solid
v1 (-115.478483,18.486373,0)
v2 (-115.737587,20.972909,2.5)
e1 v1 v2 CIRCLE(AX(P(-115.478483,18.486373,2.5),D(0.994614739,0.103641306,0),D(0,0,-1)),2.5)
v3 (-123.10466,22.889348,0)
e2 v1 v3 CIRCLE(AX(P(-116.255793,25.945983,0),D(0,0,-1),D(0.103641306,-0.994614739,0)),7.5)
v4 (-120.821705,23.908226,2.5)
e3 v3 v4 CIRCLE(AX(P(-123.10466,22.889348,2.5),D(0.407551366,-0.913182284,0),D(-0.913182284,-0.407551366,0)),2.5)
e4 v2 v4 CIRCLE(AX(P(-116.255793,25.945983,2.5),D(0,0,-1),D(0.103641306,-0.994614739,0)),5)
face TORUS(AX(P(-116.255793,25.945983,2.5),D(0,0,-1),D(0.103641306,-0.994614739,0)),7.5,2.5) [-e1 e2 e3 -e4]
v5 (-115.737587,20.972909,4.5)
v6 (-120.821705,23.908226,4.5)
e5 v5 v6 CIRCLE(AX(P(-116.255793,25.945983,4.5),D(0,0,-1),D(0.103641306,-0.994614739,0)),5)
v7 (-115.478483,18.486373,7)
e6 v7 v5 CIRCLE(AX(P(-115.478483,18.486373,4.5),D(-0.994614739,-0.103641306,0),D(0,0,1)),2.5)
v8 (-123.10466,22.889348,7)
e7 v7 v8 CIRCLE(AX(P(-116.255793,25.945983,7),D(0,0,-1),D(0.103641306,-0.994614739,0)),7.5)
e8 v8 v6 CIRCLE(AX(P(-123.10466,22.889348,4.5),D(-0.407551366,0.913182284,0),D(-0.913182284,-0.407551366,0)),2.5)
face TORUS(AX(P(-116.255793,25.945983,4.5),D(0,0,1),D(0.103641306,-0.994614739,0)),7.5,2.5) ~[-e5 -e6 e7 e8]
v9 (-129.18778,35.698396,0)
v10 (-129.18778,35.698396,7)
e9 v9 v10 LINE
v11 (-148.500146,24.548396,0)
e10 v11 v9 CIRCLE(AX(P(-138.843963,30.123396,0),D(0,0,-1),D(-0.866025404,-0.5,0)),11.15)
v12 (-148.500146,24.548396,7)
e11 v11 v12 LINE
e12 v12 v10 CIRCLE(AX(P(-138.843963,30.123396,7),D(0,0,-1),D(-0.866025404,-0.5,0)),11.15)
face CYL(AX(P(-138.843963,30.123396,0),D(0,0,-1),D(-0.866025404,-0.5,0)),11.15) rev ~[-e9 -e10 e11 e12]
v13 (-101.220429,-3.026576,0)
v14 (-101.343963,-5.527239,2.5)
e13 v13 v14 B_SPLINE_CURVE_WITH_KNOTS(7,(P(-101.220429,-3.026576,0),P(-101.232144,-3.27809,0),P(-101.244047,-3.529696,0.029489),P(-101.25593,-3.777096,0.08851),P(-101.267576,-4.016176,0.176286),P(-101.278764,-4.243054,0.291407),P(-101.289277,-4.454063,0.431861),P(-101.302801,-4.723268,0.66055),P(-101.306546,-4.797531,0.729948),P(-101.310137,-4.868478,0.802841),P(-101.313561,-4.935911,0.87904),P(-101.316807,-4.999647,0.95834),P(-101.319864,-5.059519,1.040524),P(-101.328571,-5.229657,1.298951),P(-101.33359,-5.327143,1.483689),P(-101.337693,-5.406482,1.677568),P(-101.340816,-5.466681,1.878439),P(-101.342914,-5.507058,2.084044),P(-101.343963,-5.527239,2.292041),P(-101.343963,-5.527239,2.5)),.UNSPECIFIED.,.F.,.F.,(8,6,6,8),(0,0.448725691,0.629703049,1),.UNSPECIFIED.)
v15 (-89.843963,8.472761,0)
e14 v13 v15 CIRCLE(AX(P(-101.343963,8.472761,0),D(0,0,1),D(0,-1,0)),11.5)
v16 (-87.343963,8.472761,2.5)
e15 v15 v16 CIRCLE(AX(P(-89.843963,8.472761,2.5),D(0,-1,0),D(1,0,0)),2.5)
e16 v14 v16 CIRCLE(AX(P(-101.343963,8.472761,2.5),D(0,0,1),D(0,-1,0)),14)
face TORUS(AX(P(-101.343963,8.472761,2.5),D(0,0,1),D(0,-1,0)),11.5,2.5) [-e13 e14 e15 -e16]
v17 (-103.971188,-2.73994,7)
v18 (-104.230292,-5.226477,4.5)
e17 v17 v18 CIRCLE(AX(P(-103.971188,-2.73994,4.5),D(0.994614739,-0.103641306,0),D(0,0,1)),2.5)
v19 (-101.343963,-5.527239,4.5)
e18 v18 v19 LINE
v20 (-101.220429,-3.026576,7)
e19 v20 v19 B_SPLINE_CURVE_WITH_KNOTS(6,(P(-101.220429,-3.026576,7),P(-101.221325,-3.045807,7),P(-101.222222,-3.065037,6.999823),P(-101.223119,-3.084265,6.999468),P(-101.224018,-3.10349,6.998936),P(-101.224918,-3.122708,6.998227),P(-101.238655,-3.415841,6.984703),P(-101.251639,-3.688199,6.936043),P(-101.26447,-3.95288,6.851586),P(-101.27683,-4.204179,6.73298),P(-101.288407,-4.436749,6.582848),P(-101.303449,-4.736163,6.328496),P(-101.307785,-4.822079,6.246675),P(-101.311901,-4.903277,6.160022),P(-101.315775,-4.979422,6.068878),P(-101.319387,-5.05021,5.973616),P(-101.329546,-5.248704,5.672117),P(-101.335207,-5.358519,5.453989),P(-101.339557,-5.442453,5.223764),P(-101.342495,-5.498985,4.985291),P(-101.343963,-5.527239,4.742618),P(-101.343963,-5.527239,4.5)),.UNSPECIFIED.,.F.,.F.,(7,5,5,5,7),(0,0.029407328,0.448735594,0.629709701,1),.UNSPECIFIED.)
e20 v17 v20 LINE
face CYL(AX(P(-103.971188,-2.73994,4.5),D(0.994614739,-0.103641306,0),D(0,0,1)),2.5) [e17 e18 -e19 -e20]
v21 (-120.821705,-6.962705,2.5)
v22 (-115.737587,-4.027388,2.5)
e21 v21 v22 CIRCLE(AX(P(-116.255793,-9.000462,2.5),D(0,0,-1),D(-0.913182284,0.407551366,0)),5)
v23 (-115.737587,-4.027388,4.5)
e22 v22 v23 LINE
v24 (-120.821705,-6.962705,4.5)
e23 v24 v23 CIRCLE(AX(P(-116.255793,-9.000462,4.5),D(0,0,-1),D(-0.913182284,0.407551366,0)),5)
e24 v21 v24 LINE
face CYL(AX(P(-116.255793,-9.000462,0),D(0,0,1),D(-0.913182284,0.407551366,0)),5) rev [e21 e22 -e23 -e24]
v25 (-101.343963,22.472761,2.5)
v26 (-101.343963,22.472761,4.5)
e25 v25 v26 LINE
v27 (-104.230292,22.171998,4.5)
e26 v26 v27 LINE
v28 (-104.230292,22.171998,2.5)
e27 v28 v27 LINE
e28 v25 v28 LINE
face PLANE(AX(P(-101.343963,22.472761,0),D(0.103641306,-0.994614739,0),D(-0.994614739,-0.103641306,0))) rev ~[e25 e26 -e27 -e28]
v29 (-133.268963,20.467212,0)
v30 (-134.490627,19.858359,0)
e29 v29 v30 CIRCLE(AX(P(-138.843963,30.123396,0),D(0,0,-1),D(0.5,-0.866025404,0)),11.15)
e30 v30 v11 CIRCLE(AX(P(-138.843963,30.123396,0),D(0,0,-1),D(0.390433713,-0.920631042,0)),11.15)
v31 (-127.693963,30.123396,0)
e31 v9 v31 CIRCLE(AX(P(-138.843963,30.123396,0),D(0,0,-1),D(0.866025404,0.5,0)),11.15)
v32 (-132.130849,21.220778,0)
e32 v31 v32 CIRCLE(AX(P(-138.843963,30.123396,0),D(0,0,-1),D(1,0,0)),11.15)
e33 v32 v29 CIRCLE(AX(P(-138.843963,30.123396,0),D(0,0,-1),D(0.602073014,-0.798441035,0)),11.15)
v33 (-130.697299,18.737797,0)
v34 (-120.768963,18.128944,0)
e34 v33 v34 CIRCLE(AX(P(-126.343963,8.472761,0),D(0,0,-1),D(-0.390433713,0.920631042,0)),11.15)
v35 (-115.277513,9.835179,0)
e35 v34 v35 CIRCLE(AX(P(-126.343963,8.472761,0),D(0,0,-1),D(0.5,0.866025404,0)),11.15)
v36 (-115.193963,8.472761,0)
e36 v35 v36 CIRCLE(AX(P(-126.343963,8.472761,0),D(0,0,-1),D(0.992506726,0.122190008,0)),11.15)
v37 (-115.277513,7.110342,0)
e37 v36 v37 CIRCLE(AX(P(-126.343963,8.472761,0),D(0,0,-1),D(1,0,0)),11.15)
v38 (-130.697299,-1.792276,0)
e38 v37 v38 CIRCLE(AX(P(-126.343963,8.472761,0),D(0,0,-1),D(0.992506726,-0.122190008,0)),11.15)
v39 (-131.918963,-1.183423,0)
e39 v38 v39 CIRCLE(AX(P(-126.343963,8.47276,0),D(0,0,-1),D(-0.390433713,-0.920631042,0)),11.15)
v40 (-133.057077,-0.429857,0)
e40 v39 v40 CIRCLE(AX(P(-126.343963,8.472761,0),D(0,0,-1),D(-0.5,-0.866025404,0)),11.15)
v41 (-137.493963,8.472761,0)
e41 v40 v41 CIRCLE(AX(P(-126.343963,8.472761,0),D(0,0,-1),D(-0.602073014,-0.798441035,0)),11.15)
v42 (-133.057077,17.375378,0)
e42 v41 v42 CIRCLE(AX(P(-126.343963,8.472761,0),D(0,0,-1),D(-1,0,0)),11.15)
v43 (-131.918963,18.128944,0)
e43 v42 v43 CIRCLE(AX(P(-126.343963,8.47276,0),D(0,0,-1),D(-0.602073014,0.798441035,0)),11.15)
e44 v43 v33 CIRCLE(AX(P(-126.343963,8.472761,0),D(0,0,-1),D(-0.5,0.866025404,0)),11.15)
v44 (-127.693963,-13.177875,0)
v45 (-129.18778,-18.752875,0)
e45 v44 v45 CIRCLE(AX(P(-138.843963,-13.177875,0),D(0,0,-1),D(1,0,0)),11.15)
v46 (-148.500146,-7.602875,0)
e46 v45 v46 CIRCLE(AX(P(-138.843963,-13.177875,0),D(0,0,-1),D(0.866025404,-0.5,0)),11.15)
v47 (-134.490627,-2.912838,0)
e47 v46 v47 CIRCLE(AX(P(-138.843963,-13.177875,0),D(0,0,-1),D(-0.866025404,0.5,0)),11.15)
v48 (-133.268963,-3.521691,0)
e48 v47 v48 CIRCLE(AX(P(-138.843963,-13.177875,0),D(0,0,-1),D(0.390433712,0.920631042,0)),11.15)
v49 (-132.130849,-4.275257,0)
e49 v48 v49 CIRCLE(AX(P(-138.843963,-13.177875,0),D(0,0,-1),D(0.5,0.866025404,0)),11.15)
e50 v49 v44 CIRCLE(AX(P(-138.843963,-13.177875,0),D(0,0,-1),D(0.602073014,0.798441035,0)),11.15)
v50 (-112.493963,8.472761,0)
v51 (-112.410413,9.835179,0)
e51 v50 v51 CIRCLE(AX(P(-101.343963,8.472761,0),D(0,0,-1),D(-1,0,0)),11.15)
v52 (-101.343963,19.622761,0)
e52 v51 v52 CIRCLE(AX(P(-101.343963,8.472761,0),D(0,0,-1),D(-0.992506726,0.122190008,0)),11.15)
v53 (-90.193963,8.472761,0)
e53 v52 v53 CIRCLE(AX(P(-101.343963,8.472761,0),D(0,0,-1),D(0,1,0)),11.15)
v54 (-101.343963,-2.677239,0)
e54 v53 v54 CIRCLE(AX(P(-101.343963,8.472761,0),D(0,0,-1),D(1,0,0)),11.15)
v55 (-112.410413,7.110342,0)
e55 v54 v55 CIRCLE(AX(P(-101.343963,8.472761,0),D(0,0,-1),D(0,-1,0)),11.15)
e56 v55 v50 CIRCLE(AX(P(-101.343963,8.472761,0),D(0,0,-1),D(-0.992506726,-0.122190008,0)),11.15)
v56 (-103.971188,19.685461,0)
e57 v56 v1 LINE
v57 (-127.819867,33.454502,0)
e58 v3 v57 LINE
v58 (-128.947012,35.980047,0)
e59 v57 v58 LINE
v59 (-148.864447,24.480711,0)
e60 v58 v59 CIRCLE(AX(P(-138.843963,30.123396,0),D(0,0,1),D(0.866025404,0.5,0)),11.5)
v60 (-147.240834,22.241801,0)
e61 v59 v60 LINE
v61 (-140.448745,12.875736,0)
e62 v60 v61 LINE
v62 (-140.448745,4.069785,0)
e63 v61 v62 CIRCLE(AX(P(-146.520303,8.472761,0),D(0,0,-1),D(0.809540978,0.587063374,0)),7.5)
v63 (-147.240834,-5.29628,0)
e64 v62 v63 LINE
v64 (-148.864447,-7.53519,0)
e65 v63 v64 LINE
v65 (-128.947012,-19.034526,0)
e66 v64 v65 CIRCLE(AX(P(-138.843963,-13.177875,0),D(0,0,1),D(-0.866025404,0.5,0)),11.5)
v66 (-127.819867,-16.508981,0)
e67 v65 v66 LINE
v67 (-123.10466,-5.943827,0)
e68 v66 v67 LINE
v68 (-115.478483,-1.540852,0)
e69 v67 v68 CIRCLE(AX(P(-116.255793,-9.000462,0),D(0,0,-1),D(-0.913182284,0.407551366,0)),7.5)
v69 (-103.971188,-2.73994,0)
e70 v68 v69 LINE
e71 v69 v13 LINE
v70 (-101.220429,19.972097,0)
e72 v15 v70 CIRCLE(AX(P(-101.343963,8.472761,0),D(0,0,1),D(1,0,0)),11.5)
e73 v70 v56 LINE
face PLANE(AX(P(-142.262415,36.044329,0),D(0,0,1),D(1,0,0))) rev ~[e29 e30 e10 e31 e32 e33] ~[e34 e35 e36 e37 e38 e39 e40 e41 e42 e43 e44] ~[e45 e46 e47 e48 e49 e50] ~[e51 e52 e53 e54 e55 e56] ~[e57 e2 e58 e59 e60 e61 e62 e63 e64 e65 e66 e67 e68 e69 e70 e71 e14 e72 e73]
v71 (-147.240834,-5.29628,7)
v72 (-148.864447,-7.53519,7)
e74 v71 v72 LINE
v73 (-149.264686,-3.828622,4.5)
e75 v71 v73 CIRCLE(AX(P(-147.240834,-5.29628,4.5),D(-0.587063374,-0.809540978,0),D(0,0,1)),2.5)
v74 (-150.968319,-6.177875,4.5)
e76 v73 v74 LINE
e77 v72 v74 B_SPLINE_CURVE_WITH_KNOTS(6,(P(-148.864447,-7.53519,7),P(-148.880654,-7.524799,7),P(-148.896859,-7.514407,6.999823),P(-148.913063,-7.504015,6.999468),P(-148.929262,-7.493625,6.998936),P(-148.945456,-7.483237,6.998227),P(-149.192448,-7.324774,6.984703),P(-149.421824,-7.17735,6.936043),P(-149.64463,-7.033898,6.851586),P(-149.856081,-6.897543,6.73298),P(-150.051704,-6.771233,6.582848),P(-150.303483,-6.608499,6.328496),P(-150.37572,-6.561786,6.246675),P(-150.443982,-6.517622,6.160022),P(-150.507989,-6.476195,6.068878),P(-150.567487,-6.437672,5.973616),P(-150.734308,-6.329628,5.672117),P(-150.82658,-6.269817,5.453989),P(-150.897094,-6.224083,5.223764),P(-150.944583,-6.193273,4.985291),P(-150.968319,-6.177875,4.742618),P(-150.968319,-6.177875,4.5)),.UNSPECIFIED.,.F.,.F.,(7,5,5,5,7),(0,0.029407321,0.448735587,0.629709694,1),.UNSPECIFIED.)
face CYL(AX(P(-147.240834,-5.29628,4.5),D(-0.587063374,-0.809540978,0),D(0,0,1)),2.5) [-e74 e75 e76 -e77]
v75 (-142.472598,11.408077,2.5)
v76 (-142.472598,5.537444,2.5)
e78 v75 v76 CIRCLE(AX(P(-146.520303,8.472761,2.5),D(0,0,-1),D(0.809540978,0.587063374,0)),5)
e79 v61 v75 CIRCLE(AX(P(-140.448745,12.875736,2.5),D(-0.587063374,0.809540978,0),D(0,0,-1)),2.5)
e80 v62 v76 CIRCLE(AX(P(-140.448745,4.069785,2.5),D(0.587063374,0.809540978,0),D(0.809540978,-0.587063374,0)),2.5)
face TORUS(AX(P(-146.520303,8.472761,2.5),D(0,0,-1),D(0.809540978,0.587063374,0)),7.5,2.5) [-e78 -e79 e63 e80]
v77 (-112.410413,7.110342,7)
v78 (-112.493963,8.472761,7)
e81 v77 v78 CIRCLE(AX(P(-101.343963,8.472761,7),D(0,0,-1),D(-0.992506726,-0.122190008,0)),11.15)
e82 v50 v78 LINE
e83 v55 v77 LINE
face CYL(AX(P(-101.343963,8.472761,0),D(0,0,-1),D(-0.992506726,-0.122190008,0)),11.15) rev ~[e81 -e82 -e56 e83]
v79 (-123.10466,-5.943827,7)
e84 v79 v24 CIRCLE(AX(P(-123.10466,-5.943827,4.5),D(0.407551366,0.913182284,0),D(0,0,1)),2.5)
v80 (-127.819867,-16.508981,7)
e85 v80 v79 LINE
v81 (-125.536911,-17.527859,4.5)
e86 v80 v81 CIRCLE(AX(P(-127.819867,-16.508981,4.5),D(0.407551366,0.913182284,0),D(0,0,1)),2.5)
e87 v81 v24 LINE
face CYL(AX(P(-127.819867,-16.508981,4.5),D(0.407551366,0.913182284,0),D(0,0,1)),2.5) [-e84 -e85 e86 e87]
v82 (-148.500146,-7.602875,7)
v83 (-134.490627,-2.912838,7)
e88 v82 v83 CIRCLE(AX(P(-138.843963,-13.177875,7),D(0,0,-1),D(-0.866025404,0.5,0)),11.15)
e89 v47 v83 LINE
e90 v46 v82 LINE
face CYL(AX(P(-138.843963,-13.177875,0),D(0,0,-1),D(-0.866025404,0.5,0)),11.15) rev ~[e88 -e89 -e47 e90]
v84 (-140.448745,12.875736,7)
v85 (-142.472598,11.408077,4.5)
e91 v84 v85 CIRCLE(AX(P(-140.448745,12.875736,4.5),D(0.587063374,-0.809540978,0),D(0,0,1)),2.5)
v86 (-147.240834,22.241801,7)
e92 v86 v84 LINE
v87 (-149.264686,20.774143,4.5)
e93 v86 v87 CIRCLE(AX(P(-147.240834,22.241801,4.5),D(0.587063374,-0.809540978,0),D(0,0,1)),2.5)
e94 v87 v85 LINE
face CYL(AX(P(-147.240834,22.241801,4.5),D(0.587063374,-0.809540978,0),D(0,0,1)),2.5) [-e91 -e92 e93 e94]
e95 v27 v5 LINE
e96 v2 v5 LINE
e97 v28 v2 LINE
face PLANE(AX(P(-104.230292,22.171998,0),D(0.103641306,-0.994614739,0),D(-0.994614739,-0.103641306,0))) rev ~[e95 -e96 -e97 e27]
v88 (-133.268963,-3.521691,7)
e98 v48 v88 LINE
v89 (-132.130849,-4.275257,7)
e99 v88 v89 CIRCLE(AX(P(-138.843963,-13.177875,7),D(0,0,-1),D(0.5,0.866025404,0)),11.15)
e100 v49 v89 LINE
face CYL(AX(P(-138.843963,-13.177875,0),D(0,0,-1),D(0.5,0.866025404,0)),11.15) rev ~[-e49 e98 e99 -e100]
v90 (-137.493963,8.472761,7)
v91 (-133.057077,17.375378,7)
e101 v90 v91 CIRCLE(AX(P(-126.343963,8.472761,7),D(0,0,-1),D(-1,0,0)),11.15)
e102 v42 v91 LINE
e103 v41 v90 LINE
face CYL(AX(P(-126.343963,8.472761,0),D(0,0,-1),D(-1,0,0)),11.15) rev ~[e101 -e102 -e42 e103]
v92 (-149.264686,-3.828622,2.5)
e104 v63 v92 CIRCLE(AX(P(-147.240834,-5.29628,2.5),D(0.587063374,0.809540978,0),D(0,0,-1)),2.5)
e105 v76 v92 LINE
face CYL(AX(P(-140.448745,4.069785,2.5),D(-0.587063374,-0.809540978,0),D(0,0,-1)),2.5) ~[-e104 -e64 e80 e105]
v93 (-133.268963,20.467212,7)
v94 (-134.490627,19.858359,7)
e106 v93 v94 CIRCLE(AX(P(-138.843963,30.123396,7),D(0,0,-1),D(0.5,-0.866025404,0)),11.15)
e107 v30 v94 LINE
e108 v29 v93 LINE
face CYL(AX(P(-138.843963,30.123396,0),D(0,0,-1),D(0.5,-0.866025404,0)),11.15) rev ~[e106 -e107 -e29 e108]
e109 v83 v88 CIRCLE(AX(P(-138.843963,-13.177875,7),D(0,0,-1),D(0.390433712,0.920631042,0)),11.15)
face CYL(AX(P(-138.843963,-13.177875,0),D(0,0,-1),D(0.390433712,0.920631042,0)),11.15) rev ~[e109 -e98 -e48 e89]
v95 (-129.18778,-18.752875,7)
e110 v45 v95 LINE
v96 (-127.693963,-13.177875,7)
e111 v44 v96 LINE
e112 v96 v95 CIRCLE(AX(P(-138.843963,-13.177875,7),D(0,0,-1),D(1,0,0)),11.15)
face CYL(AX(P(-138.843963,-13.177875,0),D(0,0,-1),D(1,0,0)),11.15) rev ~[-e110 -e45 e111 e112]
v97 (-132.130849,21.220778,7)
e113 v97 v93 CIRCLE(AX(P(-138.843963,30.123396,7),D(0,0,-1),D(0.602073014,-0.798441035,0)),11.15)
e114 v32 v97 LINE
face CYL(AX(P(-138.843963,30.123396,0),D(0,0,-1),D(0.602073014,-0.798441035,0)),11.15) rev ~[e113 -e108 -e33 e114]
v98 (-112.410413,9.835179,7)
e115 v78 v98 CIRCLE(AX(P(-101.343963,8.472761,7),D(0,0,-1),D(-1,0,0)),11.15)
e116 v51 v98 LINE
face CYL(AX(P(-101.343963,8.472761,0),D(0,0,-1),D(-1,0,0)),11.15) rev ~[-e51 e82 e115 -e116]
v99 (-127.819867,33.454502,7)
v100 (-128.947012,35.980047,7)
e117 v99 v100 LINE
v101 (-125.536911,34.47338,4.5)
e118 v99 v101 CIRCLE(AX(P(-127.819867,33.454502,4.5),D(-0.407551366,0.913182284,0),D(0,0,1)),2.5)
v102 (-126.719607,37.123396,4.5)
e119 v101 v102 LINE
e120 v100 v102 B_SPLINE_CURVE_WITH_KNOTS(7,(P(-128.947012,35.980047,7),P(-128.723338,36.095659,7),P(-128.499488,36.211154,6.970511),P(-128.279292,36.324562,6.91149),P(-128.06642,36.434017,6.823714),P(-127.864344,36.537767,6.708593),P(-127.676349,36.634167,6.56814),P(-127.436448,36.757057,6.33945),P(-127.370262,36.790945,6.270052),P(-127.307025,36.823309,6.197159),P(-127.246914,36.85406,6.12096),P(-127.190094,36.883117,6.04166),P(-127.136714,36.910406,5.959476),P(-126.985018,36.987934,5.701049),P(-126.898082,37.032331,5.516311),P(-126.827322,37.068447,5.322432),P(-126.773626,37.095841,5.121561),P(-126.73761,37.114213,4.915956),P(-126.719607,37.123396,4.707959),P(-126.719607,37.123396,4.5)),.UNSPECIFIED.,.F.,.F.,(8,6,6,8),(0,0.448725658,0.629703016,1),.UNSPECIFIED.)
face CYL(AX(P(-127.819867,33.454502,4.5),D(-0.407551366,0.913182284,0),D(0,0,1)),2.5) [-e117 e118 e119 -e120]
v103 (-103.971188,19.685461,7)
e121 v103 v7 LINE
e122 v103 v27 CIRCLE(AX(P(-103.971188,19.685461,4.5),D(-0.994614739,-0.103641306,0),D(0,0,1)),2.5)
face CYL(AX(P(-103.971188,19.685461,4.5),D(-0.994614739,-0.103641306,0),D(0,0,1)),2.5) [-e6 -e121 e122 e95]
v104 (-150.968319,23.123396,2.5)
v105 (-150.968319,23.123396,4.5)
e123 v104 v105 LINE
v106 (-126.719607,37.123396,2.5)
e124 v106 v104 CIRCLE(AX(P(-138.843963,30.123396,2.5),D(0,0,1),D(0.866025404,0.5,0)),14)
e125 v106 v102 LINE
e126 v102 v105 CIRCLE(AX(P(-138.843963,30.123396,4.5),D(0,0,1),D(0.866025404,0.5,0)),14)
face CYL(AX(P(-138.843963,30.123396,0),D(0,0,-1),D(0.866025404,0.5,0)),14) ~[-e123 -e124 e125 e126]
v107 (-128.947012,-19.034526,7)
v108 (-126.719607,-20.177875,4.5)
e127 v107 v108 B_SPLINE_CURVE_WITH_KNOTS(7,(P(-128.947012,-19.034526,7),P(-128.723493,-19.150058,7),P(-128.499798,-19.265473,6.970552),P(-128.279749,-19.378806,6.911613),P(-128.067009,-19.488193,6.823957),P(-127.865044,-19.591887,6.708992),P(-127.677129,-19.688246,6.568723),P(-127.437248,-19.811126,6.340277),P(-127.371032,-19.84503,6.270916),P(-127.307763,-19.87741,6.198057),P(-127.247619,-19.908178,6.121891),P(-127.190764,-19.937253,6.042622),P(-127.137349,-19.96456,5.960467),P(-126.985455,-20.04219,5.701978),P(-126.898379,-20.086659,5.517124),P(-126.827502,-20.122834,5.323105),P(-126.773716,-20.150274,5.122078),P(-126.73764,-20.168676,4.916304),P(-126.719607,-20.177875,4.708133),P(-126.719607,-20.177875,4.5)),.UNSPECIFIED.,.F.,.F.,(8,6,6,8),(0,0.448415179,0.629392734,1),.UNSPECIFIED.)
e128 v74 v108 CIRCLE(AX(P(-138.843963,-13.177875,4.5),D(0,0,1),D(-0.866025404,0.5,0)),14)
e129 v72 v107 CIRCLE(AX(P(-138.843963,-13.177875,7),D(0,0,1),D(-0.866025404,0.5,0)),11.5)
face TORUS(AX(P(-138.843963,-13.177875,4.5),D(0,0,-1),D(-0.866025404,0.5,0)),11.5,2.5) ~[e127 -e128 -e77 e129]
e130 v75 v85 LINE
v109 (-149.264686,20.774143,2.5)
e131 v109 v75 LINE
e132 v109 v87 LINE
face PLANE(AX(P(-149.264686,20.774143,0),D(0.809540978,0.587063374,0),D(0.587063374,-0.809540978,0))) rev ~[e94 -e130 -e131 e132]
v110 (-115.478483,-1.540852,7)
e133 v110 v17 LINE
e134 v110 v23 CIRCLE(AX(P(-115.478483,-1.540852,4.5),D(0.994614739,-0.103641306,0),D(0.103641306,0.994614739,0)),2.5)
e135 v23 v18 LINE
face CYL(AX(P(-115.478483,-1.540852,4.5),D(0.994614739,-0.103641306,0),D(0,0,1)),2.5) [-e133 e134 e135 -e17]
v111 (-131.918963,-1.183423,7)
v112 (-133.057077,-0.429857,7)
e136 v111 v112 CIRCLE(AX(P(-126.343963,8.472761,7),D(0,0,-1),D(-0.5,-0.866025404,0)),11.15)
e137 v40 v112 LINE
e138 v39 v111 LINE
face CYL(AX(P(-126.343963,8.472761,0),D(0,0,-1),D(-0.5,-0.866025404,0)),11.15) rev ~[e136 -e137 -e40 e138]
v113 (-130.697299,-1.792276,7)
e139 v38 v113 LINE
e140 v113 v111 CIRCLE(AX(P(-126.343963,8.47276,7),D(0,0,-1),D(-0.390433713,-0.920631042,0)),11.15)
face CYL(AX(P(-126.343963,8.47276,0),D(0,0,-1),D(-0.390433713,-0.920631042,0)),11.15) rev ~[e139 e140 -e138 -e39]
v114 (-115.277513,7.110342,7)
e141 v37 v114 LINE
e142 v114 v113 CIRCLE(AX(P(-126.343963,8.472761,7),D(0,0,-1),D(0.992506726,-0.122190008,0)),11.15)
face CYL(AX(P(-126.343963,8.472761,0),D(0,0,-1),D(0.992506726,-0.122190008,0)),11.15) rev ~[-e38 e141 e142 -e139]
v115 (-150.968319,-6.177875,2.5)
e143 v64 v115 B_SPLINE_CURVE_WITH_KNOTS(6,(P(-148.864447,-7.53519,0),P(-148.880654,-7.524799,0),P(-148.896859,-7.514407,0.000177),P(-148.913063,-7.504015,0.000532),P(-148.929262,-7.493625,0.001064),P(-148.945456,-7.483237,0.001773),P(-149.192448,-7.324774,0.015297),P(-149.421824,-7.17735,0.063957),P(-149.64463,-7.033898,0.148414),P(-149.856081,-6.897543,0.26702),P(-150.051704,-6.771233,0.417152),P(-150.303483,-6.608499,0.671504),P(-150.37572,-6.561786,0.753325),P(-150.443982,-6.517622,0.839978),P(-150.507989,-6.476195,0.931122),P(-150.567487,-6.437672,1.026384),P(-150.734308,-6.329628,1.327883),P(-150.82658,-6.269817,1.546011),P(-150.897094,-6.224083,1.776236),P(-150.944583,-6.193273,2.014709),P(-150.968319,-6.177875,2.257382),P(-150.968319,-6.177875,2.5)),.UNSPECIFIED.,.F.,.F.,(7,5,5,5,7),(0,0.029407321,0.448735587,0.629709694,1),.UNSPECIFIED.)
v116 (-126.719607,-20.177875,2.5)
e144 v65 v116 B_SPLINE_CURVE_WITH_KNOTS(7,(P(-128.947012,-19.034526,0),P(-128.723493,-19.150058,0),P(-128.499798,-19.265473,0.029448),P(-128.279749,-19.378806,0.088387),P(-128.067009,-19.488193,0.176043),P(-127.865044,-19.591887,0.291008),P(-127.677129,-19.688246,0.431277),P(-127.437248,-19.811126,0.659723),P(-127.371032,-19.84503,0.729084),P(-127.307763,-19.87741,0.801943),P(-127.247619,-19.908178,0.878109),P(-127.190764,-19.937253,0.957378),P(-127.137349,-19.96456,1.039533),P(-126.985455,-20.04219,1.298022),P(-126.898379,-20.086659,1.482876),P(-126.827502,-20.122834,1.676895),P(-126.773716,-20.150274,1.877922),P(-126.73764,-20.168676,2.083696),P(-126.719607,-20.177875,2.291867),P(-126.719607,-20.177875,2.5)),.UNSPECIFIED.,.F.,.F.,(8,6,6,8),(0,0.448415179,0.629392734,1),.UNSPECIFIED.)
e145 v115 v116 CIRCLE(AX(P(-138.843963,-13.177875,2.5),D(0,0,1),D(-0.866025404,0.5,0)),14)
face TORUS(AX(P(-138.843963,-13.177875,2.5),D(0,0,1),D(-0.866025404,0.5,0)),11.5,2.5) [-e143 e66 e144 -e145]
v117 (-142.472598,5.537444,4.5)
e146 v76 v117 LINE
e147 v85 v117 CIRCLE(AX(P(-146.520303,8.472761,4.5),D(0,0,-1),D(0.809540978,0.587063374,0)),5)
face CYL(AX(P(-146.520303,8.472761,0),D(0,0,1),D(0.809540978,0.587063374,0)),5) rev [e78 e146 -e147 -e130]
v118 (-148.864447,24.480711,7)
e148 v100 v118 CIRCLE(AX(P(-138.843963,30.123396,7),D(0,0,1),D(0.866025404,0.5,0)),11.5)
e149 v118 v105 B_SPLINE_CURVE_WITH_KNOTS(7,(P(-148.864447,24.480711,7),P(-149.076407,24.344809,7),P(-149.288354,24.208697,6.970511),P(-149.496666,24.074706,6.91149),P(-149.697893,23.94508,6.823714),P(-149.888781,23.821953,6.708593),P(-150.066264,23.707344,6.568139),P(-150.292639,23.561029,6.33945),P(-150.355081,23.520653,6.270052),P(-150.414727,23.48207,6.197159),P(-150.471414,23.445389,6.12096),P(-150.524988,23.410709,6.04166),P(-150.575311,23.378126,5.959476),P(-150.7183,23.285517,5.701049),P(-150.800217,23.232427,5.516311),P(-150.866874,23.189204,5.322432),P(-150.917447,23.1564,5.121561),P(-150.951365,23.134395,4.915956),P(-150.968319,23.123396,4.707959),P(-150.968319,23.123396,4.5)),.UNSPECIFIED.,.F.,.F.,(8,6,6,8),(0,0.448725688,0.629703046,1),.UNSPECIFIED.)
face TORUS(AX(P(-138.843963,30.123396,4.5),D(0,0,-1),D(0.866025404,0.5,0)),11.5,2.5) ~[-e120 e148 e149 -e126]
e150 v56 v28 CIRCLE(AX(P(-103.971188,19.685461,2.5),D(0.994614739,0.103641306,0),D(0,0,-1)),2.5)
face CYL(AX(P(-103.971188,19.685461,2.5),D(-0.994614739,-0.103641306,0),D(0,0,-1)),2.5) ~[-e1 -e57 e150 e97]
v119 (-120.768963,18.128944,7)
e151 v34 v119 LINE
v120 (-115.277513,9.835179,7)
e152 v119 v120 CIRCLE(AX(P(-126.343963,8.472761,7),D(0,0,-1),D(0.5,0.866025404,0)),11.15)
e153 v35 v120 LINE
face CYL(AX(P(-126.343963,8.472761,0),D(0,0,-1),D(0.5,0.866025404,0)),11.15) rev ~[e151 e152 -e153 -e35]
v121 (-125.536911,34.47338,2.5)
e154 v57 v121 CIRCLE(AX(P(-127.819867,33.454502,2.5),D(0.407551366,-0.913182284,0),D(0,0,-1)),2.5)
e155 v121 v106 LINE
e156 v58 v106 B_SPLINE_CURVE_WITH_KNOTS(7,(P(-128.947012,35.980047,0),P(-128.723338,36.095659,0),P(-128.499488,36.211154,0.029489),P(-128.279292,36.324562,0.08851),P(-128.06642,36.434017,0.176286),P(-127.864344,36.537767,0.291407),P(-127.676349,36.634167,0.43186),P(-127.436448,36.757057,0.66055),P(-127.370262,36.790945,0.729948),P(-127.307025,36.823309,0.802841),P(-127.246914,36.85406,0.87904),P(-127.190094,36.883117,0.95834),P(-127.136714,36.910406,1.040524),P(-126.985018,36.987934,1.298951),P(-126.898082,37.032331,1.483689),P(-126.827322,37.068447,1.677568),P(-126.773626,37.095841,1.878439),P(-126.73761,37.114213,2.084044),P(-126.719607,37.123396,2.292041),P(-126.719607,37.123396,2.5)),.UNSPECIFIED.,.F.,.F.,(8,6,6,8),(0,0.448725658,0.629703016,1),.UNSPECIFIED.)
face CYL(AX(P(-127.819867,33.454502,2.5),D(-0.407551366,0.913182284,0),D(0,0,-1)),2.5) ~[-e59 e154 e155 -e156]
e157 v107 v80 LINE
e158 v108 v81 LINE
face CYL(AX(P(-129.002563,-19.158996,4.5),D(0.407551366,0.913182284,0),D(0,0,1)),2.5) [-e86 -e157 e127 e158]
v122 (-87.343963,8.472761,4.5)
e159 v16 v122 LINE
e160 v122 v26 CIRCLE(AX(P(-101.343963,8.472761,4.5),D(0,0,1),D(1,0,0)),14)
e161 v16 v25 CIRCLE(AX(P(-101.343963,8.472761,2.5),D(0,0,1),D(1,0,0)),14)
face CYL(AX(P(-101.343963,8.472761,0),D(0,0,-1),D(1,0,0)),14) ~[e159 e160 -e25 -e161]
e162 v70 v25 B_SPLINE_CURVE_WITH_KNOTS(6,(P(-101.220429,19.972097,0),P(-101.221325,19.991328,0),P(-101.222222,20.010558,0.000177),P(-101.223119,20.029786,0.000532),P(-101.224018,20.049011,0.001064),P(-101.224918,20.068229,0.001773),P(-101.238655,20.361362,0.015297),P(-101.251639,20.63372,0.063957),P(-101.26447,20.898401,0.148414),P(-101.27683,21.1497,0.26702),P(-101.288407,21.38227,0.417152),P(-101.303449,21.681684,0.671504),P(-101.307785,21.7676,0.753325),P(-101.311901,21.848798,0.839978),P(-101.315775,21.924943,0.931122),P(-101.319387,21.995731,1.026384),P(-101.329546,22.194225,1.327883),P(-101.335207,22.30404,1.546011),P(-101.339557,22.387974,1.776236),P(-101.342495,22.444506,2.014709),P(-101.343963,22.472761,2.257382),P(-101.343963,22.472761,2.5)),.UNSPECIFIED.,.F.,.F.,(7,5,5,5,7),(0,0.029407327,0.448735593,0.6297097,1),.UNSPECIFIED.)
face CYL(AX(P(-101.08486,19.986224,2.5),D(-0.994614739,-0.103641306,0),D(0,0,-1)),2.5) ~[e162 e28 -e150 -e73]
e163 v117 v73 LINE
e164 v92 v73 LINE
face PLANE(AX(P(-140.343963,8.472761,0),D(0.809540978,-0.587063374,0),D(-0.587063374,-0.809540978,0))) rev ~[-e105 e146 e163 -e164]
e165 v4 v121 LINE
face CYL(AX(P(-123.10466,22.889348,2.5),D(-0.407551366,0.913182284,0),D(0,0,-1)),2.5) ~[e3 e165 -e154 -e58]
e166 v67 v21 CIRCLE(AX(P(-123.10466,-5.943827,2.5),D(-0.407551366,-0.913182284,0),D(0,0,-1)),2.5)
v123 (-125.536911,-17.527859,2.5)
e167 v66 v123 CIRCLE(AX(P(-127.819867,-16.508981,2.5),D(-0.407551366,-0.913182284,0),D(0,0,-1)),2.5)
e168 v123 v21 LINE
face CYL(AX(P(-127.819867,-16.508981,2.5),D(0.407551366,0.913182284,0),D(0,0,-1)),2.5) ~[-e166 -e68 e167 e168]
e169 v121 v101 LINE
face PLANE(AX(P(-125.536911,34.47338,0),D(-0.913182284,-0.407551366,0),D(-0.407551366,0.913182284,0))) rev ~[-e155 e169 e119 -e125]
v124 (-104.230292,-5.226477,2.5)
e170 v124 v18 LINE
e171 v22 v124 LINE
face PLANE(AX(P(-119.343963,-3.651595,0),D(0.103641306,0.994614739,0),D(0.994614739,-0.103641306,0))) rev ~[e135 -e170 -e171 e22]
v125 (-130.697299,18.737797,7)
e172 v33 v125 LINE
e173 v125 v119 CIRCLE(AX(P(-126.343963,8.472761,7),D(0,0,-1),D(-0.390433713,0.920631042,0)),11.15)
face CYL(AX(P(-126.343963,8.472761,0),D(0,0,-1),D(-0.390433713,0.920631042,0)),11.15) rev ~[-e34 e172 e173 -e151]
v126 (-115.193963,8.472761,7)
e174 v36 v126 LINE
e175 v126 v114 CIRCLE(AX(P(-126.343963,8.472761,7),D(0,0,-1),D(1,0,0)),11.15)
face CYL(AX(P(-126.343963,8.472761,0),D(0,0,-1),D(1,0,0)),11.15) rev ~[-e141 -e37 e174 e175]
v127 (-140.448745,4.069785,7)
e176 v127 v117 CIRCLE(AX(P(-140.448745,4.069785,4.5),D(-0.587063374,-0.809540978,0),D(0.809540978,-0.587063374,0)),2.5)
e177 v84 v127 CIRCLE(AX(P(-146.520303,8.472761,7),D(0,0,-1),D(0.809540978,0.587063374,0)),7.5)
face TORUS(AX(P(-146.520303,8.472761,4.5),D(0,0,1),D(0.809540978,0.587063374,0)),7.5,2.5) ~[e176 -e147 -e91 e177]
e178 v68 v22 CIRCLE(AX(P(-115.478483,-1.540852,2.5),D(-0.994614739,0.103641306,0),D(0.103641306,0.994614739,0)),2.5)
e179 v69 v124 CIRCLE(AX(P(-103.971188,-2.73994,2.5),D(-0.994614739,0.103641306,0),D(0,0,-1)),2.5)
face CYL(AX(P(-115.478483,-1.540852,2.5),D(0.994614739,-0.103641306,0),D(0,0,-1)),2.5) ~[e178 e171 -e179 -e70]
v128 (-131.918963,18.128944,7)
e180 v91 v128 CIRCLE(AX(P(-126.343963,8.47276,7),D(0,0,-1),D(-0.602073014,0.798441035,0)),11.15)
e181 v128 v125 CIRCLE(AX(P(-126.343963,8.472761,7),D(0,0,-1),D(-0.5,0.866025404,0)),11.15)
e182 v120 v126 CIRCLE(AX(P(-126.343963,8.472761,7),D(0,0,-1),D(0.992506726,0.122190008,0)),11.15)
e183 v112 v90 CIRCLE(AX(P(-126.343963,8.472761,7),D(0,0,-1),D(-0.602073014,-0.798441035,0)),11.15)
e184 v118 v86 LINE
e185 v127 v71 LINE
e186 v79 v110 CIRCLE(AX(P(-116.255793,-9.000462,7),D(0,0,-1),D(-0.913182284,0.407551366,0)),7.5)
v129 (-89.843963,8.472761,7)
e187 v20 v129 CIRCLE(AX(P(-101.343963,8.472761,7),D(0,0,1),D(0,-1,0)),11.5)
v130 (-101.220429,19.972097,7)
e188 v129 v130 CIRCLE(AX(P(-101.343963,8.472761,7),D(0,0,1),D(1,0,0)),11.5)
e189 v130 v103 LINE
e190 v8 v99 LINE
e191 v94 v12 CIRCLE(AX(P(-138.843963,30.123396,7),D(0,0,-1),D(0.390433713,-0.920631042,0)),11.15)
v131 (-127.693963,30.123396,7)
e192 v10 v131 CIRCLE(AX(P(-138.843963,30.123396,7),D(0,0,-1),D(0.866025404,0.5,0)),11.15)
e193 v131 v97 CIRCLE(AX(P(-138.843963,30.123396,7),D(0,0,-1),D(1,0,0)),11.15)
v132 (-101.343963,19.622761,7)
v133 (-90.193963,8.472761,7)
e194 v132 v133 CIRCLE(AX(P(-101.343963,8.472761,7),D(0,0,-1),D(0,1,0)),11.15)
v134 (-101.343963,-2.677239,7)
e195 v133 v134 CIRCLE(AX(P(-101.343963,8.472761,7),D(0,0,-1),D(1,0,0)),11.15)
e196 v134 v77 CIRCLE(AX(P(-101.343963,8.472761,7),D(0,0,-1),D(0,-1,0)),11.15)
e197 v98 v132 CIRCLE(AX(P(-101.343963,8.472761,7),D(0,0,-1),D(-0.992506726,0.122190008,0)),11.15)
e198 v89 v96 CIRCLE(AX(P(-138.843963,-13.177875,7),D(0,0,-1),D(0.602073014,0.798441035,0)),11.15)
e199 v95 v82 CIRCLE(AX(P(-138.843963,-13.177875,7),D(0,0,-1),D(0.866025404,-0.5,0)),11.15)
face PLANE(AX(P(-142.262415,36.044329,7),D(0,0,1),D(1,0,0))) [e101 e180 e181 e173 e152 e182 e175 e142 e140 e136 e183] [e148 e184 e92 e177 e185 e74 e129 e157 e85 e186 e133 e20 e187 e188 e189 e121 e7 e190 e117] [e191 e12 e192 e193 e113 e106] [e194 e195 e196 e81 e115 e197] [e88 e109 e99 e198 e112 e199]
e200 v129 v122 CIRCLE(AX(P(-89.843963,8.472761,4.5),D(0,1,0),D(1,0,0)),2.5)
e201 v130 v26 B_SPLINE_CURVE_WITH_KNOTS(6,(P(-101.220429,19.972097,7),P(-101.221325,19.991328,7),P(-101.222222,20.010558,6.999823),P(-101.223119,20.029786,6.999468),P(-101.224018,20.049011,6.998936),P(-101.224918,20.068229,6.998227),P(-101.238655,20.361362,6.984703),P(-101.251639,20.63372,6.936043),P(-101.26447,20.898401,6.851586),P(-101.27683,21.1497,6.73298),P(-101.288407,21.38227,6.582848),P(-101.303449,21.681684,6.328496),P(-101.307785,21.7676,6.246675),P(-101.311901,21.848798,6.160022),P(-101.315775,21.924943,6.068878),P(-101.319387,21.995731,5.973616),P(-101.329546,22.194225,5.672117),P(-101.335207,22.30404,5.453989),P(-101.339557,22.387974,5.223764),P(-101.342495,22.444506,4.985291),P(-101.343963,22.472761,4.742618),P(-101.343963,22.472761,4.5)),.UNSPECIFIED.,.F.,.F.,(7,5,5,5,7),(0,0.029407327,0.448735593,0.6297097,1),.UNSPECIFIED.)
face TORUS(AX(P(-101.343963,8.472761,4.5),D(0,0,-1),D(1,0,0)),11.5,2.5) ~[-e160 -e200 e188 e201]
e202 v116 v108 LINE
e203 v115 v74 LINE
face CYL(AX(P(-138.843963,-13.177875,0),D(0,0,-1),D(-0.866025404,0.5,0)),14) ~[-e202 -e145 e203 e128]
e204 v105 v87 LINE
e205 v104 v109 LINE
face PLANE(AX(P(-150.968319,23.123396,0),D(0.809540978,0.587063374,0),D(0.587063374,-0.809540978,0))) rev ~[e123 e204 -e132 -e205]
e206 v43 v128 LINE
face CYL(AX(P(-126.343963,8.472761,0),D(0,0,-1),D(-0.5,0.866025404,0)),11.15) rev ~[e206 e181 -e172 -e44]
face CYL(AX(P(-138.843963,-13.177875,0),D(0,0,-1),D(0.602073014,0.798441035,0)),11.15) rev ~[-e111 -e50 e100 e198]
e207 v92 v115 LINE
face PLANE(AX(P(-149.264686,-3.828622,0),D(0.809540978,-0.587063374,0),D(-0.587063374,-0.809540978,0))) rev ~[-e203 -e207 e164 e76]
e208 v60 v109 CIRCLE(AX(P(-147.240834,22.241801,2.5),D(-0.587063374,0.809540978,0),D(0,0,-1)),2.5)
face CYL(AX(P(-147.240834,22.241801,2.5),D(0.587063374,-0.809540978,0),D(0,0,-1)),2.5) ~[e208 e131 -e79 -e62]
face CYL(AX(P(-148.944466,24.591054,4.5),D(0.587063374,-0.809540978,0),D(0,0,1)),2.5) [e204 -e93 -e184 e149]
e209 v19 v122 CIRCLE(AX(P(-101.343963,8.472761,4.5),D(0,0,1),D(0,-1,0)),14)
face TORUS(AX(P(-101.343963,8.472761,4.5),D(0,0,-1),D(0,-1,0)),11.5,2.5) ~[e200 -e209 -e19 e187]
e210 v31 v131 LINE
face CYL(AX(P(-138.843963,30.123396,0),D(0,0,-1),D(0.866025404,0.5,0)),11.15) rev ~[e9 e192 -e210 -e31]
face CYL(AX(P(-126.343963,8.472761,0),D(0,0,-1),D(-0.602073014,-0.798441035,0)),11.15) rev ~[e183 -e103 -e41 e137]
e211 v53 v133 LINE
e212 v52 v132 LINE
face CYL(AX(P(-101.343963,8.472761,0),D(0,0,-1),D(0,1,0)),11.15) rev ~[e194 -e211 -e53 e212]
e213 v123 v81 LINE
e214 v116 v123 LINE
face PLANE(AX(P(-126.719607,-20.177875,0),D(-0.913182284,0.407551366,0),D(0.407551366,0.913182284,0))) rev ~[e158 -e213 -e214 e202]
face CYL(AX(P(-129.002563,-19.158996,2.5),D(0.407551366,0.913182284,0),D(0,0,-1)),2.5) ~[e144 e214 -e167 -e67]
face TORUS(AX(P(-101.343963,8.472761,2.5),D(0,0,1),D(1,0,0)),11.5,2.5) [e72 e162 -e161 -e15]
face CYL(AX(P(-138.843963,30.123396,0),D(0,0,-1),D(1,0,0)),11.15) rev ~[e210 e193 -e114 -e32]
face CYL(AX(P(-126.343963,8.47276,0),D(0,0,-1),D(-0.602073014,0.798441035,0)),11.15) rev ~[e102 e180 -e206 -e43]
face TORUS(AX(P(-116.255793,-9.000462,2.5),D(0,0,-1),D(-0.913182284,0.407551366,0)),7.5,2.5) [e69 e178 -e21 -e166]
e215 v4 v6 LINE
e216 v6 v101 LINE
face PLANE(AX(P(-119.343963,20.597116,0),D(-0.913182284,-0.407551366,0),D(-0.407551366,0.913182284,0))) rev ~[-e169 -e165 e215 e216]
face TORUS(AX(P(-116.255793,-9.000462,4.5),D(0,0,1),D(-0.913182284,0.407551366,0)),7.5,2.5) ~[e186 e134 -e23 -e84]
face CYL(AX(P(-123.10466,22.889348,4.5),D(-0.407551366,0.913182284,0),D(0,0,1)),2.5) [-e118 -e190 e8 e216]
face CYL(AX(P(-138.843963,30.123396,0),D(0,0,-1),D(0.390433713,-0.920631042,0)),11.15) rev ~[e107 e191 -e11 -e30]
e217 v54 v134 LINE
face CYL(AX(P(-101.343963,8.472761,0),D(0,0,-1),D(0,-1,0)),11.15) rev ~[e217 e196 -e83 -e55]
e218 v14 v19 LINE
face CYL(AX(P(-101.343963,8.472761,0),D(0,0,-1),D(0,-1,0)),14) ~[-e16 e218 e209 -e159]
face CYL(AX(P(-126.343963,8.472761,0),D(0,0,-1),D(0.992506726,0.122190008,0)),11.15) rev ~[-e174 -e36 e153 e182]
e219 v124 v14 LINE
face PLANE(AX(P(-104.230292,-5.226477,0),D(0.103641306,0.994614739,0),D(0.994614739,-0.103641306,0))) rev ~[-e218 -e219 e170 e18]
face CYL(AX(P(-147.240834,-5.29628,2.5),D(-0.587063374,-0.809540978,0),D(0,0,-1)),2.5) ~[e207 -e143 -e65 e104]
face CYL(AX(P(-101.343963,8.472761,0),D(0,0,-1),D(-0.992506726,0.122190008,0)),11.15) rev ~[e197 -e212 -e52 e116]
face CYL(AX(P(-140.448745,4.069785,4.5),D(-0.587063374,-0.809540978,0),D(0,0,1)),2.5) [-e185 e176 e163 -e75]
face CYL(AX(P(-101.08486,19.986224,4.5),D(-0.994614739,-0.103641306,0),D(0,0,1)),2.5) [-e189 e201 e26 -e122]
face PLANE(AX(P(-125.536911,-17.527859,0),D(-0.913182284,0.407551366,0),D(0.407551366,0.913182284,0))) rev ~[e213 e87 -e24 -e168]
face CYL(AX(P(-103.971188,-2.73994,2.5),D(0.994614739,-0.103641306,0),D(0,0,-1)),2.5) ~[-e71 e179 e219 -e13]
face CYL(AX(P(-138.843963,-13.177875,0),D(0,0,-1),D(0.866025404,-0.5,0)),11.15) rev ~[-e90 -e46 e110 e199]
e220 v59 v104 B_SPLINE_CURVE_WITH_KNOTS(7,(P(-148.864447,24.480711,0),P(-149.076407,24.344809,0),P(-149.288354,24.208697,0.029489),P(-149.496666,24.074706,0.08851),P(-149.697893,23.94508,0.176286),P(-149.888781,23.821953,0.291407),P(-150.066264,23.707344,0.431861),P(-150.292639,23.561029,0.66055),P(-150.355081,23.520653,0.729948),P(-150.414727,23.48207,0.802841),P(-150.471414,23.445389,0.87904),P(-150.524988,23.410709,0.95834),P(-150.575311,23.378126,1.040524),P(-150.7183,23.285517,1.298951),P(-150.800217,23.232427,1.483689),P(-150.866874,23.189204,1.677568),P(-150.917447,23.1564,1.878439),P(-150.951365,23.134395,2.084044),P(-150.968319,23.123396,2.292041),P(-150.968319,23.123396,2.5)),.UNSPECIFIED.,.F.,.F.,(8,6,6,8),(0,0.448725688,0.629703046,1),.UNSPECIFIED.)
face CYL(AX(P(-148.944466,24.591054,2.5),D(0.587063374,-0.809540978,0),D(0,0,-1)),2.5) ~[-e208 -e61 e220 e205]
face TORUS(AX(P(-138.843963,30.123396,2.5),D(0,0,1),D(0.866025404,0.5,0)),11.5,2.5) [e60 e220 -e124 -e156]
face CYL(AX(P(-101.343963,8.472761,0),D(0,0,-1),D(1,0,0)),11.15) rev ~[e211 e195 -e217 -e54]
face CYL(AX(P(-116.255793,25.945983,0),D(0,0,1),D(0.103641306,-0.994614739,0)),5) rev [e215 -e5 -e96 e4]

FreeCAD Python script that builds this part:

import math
import FreeCAD as App
import Part
import Sketcher


def edges_at(feature, points):
    """Names of the edges that pass closest to the given points."""
    edges = feature.Shape.Edges
    near = lambda p: min(range(len(edges)), key=lambda i: edges[i].distToShape(Part.Vertex(*p))[0])
    return sorted({f"Edge{near(p) + 1}" for p in points})

doc = App.newDocument("Part")
params = doc.addObject("Spreadsheet::Sheet", "Params")
for row, (alias, value) in enumerate([
    ("sketch1_radius", "14 mm"),
    ("sketch1_radius2", "11.15 mm"),
    ("pad1_length", "7 mm"),
    ("fillet_radius", "5 mm"),
    ("fillet2_radius", "2.5 mm"),
], start=1):
    params.set(f"A{row}", alias)
    params.set(f"B{row}", "=" + value)
    params.setAlias(f"B{row}", alias)

body = doc.addObject("PartDesign::Body", "Body")

sketch1 = body.newObject("Sketcher::SketchObject", "Sketch")
sketch1.AttachmentSupport = (doc.getObject("XY_Plane"), [""])
sketch1.MapMode = "FlatFace"
sketch1.addGeometry([
    Part.ArcOfCircle(Part.Circle(App.Vector(-138.8, 30.1, 0), App.Vector(0, 0, 1), 14), math.radians(30), math.radians(210)),
    Part.LineSegment(App.Vector(-151, 23.1, 0), App.Vector(-149.3, 20.8, 0)),
    Part.LineSegment(App.Vector(-149.3, 20.8, 0), App.Vector(-140.3, 8.5, 0)),
    Part.LineSegment(App.Vector(-140.3, 8.5, 0), App.Vector(-149.3, -3.8, 0)),
    Part.LineSegment(App.Vector(-149.3, -3.8, 0), App.Vector(-151, -6.2, 0)),
    Part.ArcOfCircle(Part.Circle(App.Vector(-138.8, -13.2, 0), App.Vector(0, 0, 1), 14), math.radians(150), math.radians(330)),
    Part.LineSegment(App.Vector(-126.7, -20.2, 0), App.Vector(-125.5, -17.5, 0)),
    Part.LineSegment(App.Vector(-125.5, -17.5, 0), App.Vector(-119.3, -3.7, 0)),
    Part.LineSegment(App.Vector(-119.3, -3.7, 0), App.Vector(-104.2, -5.2, 0)),
    Part.LineSegment(App.Vector(-104.2, -5.2, 0), App.Vector(-101.3, -5.5, 0)),
    Part.ArcOfCircle(Part.Circle(App.Vector(-101.3, 8.5, 0), App.Vector(0, 0, 1), 14), math.radians(-90), math.radians(0)),
    Part.ArcOfCircle(Part.Circle(App.Vector(-101.3, 8.5, 0), App.Vector(0, 0, 1), 14), math.radians(0), math.radians(90)),
    Part.LineSegment(App.Vector(-101.3, 22.5, 0), App.Vector(-104.2, 22.2, 0)),
    Part.LineSegment(App.Vector(-104.2, 22.2, 0), App.Vector(-119.3, 20.6, 0)),
    Part.LineSegment(App.Vector(-119.3, 20.6, 0), App.Vector(-125.5, 34.5, 0)),
    Part.LineSegment(App.Vector(-125.5, 34.5, 0), App.Vector(-126.7, 37.1, 0)),
    Part.ArcOfCircle(Part.Circle(App.Vector(-101.3, 8.5, 0), App.Vector(0, 0, 1), 11.2), math.radians(-173), math.radians(-90)),
    Part.ArcOfCircle(Part.Circle(App.Vector(-101.3, 8.5, 0), App.Vector(0, 0, 1), 11.1), math.radians(180), math.radians(187.02)),
    Part.ArcOfCircle(Part.Circle(App.Vector(-101.3, 8.5, 0), App.Vector(0, 0, 1), 11.1), math.radians(172.98), math.radians(180)),
    Part.ArcOfCircle(Part.Circle(App.Vector(-101.3, 8.5, 0), App.Vector(0, 0, 1), 11.2), math.radians(90), math.radians(173)),
    Part.ArcOfCircle(Part.Circle(App.Vector(-101.3, 8.5, 0), App.Vector(0, 0, 1), 11.2), math.radians(0), math.radians(90)),
    Part.ArcOfCircle(Part.Circle(App.Vector(-101.3, 8.5, 0), App.Vector(0, 0, 1), 11.2), math.radians(-90), math.radians(0)),
    Part.ArcOfCircle(Part.Circle(App.Vector(-138.8, -13.2, 0), App.Vector(0, 0, 1), 11.2), math.radians(67), math.radians(150)),
    Part.ArcOfCircle(Part.Circle(App.Vector(-138.8, -13.2, 0), App.Vector(0, 0, 1), 11.1), math.radians(60), math.radians(67.02)),
    Part.ArcOfCircle(Part.Circle(App.Vector(-138.8, -13.2, 0), App.Vector(0, 0, 1), 11.2), math.radians(52.98), math.radians(60)),
    Part.ArcOfCircle(Part.Circle(App.Vector(-138.8, -13.2, 0), App.Vector(0, 0, 1), 11.2), math.radians(0), math.radians(53)),
    Part.ArcOfCircle(Part.Circle(App.Vector(-138.8, -13.2, 0), App.Vector(0, 0, 1), 11.2), math.radians(-30), math.radians(0)),
    Part.ArcOfCircle(Part.Circle(App.Vector(-138.8, -13.2, 0), App.Vector(0, 0, 1), 11.2), math.radians(150), math.radians(330)),
    Part.ArcOfCircle(Part.Circle(App.Vector(-126.3, 8.5, 0), App.Vector(0, 0, 1), 11.1), math.radians(0), math.radians(7.02)),
    Part.ArcOfCircle(Part.Circle(App.Vector(-126.3, 8.5, 0), App.Vector(0, 0, 1), 11.1), math.radians(-7.02), math.radians(0)),
    Part.ArcOfCircle(Part.Circle(App.Vector(-126.3, 8.5, 0), App.Vector(0, 0, 1), 11.2), math.radians(-113), math.radians(-7)),
    Part.ArcOfCircle(Part.Circle(App.Vector(-126.3, 8.5, 0), App.Vector(0, 0, 1), 11.1), math.radians(-120), math.radians(-112.98)),
    Part.ArcOfCircle(Part.Circle(App.Vector(-126.3, 8.5, 0), App.Vector(0, 0, 1), 11.2), math.radians(-127.02), math.radians(-120)),
    Part.ArcOfCircle(Part.Circle(App.Vector(-126.3, 8.5, 0), App.Vector(0, 0, 1), 11.2), math.radians(180), math.radians(233)),
    Part.ArcOfCircle(Part.Circle(App.Vector(-126.3, 8.5, 0), App.Vector(0, 0, 1), 11.2), math.radians(127), math.radians(180)),
    Part.ArcOfCircle(Part.Circle(App.Vector(-126.3, 8.5, 0), App.Vector(0, 0, 1), 11.2), math.radians(120), math.radians(127.02)),
    Part.ArcOfCircle(Part.Circle(App.Vector(-126.3, 8.5, 0), App.Vector(0, 0, 1), 11.1), math.radians(112.98), math.radians(120)),
    Part.ArcOfCircle(Part.Circle(App.Vector(-126.3, 8.5, 0), App.Vector(0, 0, 1), 11.2), math.radians(60), math.radians(113)),
    Part.ArcOfCircle(Part.Circle(App.Vector(-126.3, 8.5, 0), App.Vector(0, 0, 1), 11.2), math.radians(7), math.radians(60)),
    Part.ArcOfCircle(Part.Circle(App.Vector(-138.8, 30.1, 0), App.Vector(0, 0, 1), 11.2), math.radians(-67.02), math.radians(-60)),
    Part.ArcOfCircle(Part.Circle(App.Vector(-138.8, 30.1, 0), App.Vector(0, 0, 1), 11.2), math.radians(-150), math.radians(-67)),
    Part.ArcOfCircle(Part.Circle(App.Vector(-138.8, 30.1, 0), App.Vector(0, 0, 1), 11.2), math.radians(30), math.radians(210)),
    Part.ArcOfCircle(Part.Circle(App.Vector(-138.8, 30.1, 0), App.Vector(0, 0, 1), 11.2), math.radians(0), math.radians(30)),
    Part.ArcOfCircle(Part.Circle(App.Vector(-138.8, 30.1, 0), App.Vector(0, 0, 1), 11.2), math.radians(-53), math.radians(0)),
    Part.ArcOfCircle(Part.Circle(App.Vector(-138.8, 30.1, 0), App.Vector(0, 0, 1), 11.2), math.radians(-60), math.radians(-52.98)),
], False)
sketch1.addConstraint([
    Sketcher.Constraint("Coincident", 0, 2, 1, 1),
    Sketcher.Constraint("Coincident", 1, 2, 2, 1),
    Sketcher.Constraint("Coincident", 2, 2, 3, 1),
    Sketcher.Constraint("Coincident", 3, 2, 4, 1),
    Sketcher.Constraint("Coincident", 4, 2, 5, 1),
    Sketcher.Constraint("Coincident", 5, 2, 6, 1),
    Sketcher.Constraint("Coincident", 6, 2, 7, 1),
    Sketcher.Constraint("Coincident", 7, 2, 8, 1),
    Sketcher.Constraint("Coincident", 8, 2, 9, 1),
    Sketcher.Constraint("Coincident", 9, 2, 10, 1),
    Sketcher.Constraint("Tangent", 10, 2, 11, 1),
    Sketcher.Constraint("Coincident", 11, 2, 12, 1),
    Sketcher.Constraint("Coincident", 12, 2, 13, 1),
    Sketcher.Constraint("Coincident", 13, 2, 14, 1),
    Sketcher.Constraint("Coincident", 14, 2, 15, 1),
    Sketcher.Constraint("Coincident", 15, 2, 0, 1),
    Sketcher.Constraint("Tangent", 16, 1, 17, 2),
    Sketcher.Constraint("Tangent", 17, 1, 18, 2),
    Sketcher.Constraint("Tangent", 18, 1, 19, 2),
    Sketcher.Constraint("Tangent", 19, 1, 20, 2),
    Sketcher.Constraint("Tangent", 20, 1, 21, 2),
    Sketcher.Constraint("Tangent", 21, 1, 16, 2),
    Sketcher.Constraint("Tangent", 22, 1, 23, 2),
    Sketcher.Constraint("Tangent", 23, 1, 24, 2),
    Sketcher.Constraint("Tangent", 24, 1, 25, 2),
    Sketcher.Constraint("Tangent", 25, 1, 26, 2),
    Sketcher.Constraint("Tangent", 26, 1, 27, 2),
    Sketcher.Constraint("Tangent", 27, 1, 22, 2),
    Sketcher.Constraint("Tangent", 28, 1, 29, 2),
    Sketcher.Constraint("Tangent", 29, 1, 30, 2),
    Sketcher.Constraint("Tangent", 30, 1, 31, 2),
    Sketcher.Constraint("Tangent", 31, 1, 32, 2),
    Sketcher.Constraint("Tangent", 32, 1, 33, 2),
    Sketcher.Constraint("Tangent", 33, 1, 34, 2),
    Sketcher.Constraint("Tangent", 34, 1, 35, 2),
    Sketcher.Constraint("Tangent", 35, 1, 36, 2),
    Sketcher.Constraint("Tangent", 36, 1, 37, 2),
    Sketcher.Constraint("Tangent", 37, 1, 38, 2),
    Sketcher.Constraint("Tangent", 38, 1, 28, 2),
    Sketcher.Constraint("Tangent", 39, 1, 40, 2),
    Sketcher.Constraint("Tangent", 40, 1, 41, 2),
    Sketcher.Constraint("Tangent", 41, 1, 42, 2),
    Sketcher.Constraint("Tangent", 42, 1, 43, 2),
    Sketcher.Constraint("Tangent", 43, 1, 44, 2),
    Sketcher.Constraint("Tangent", 44, 1, 39, 2),
    Sketcher.Constraint("Coincident", 16, 3, 10, 3),
    Sketcher.Constraint("Coincident", 18, 3, 10, 3),
    Sketcher.Constraint("Coincident", 22, 3, 5, 3),
    Sketcher.Constraint("Coincident", 24, 3, 5, 3),
    Sketcher.Constraint("Coincident", 30, 3, 28, 3),
    Sketcher.Constraint("Coincident", 32, 3, 28, 3),
    Sketcher.Constraint("Coincident", 34, 3, 28, 3),
    Sketcher.Constraint("Coincident", 36, 3, 28, 3),
    Sketcher.Constraint("Coincident", 39, 3, 0, 3),
    Sketcher.Constraint("Coincident", 41, 3, 0, 3),
    Sketcher.Constraint("Equal", 0, 5),
    Sketcher.Constraint("Equal", 5, 10),
    Sketcher.Constraint("Equal", 10, 11),
    Sketcher.Constraint("Equal", 18, 19),
    Sketcher.Constraint("Equal", 21, 22),
    Sketcher.Constraint("Equal", 24, 25),
    Sketcher.Constraint("Equal", 27, 28),
    Sketcher.Constraint("Equal", 38, 39),
    Sketcher.Constraint("Equal", 41, 42),
    Sketcher.Constraint("Parallel", 1, 2),
    Sketcher.Constraint("Parallel", 3, 4),
    Sketcher.Constraint("Parallel", 6, 7),
    Sketcher.Constraint("Parallel", 8, 9),
    Sketcher.Constraint("Parallel", 12, 13),
    Sketcher.Constraint("Parallel", 14, 15),
    Sketcher.Constraint("Horizontal", 21, 3, 28, 3),
    Sketcher.Constraint("Horizontal", 38, 3, 2, 2),
    Sketcher.Constraint("Horizontal", 2, 2, 10, 2),
    Sketcher.Constraint("Horizontal", 10, 2, 17, 1),
    Sketcher.Constraint("Horizontal", 17, 1, 20, 1),
    Sketcher.Constraint("Horizontal", 27, 3, 25, 1),
    Sketcher.Constraint("Horizontal", 20, 1, 28, 1),
    Sketcher.Constraint("Horizontal", 16, 1, 29, 1),
    Sketcher.Constraint("Horizontal", 28, 1, 33, 1),
    Sketcher.Constraint("Horizontal", 35, 1, 37, 1),
    Sketcher.Constraint("Horizontal", 18, 1, 38, 1),
    Sketcher.Constraint("Horizontal", 44, 3, 42, 1),
    Sketcher.Constraint("Vertical", 0, 3, 5, 3),
    Sketcher.Constraint("Vertical", 1, 2, 3, 2),
    Sketcher.Constraint("Vertical", 0, 2, 4, 2),
    Sketcher.Constraint("Vertical", 21, 3, 9, 2),
    Sketcher.Constraint("Vertical", 9, 2, 11, 2),
    Sketcher.Constraint("Vertical", 8, 2, 12, 2),
    Sketcher.Constraint("Vertical", 7, 2, 13, 2),
    Sketcher.Constraint("Vertical", 6, 2, 14, 2),
    Sketcher.Constraint("Vertical", 5, 2, 15, 2),
    Sketcher.Constraint("Vertical", 16, 1, 18, 1),
    Sketcher.Constraint("Vertical", 11, 2, 19, 1),
    Sketcher.Constraint("Vertical", 19, 1, 21, 1),
    Sketcher.Constraint("Vertical", 32, 1, 34, 1),
    Sketcher.Constraint("Vertical", 31, 1, 35, 1),
    Sketcher.Constraint("Vertical", 30, 1, 36, 1),
    Sketcher.Constraint("Vertical", 22, 1, 39, 1),
    Sketcher.Constraint("Vertical", 27, 1, 40, 1),
    Sketcher.Constraint("Vertical", 26, 1, 41, 1),
    Sketcher.Constraint("Vertical", 24, 1, 43, 1),
    Sketcher.Constraint("Vertical", 23, 1, 44, 1),
    Sketcher.Constraint("Equal", 2, 3),
    Sketcher.Constraint("Equal", 4, 6),
    Sketcher.Constraint("Equal", 3, 7),
    Sketcher.Constraint("Equal", 7, 8),
    Sketcher.Constraint("Equal", 6, 9),
    Sketcher.Constraint("Equal", 9, 12),
    Sketcher.Constraint("Radius", 0, 14.0),
    Sketcher.Constraint("Radius", 16, 11.15),
    Sketcher.Constraint("DistanceX", 30, 1, -1, 1, 130.697299),
    Sketcher.Constraint("DistanceY", -1, 1, 10, 3, 8.47276),
    Sketcher.Constraint("DistanceX", 0, 2, -1, 1, 150.968319),
    Sketcher.Constraint("DistanceY", 3, 2, -1, 1, 3.828622),
    Sketcher.Constraint("DistanceX", 6, 2, -1, 1, 125.536911),
    Sketcher.Constraint("DistanceY", 6, 2, -1, 1, 17.527859),
    Sketcher.Constraint("DistanceX", 8, 2, -1, 1, 104.230292),
    Sketcher.Constraint("DistanceY", -1, 1, 16, 1, 7.110342),
    Sketcher.Constraint("DistanceY", 22, 1, -1, 1, 2.912838),
    Sketcher.Constraint("DistanceY", 23, 1, -1, 1, 3.521691),
    Sketcher.Constraint("DistanceX", 24, 1, -1, 1, 132.130849),
    Sketcher.Constraint("DistanceX", 26, 1, -1, 1, 129.18778),
    Sketcher.Constraint("DistanceY", -1, 1, 34, 1, 17.375378),
    Sketcher.Constraint("DistanceY", -1, 1, 43, 1, 21.220778),
    Sketcher.Constraint("Distance", 1, 2.901957),
    Sketcher.Constraint("DistanceX", 28, 3, -1, 1, 126.343963),
    Sketcher.Constraint("DistanceX", 27, 1, -1, 1, 148.500146),
    Sketcher.Constraint("DistanceX", 31, 1, -1, 1, 131.918963),
])
sketch1.setExpression("Constraints[108]", "Params.sketch1_radius")
sketch1.setExpression("Constraints[109]", "Params.sketch1_radius2")
pad1 = body.newObject("PartDesign::Pad", "Pad")
pad1.Profile = sketch1
pad1.setExpression("Length", "Params.pad1_length")
doc.recompute()

fillet = body.newObject("PartDesign::Fillet", "Fillet")
fillet.Base = (pad1, edges_at(pad1, [(-119.344, -3.652, 3.5), (-140.344, 8.473, 3.5), (-119.344, 20.597, 3.5)]))
fillet.setExpression("Radius", "Params.fillet_radius")
doc.recompute()

fillet2 = body.newObject("PartDesign::Fillet", "Fillet001")
fillet2.Base = (fillet, edges_at(fillet, [
    (-123.179, -12.245, 7),
    (-145.844, -25.302, 7),
    (-145.869, 0.854, 7),
    (-141.52, 8.473, 7),
    (-145.869, 16.091, 7),
    (-145.844, 42.248, 7),
    (-123.179, 29.191, 7),
    (-91.444, 18.372, 7),
    (-109.984, 21.572, 0),
    (-145.844, 42.248, 0),
    (-141.52, 8.473, 0),
    (-145.844, -25.302, 0),
    (-123.179, -12.245, 0),
    (-91.444, 18.372, 0),
]))
fillet2.setExpression("Radius", "Params.fillet2_radius")

doc.recompute()
